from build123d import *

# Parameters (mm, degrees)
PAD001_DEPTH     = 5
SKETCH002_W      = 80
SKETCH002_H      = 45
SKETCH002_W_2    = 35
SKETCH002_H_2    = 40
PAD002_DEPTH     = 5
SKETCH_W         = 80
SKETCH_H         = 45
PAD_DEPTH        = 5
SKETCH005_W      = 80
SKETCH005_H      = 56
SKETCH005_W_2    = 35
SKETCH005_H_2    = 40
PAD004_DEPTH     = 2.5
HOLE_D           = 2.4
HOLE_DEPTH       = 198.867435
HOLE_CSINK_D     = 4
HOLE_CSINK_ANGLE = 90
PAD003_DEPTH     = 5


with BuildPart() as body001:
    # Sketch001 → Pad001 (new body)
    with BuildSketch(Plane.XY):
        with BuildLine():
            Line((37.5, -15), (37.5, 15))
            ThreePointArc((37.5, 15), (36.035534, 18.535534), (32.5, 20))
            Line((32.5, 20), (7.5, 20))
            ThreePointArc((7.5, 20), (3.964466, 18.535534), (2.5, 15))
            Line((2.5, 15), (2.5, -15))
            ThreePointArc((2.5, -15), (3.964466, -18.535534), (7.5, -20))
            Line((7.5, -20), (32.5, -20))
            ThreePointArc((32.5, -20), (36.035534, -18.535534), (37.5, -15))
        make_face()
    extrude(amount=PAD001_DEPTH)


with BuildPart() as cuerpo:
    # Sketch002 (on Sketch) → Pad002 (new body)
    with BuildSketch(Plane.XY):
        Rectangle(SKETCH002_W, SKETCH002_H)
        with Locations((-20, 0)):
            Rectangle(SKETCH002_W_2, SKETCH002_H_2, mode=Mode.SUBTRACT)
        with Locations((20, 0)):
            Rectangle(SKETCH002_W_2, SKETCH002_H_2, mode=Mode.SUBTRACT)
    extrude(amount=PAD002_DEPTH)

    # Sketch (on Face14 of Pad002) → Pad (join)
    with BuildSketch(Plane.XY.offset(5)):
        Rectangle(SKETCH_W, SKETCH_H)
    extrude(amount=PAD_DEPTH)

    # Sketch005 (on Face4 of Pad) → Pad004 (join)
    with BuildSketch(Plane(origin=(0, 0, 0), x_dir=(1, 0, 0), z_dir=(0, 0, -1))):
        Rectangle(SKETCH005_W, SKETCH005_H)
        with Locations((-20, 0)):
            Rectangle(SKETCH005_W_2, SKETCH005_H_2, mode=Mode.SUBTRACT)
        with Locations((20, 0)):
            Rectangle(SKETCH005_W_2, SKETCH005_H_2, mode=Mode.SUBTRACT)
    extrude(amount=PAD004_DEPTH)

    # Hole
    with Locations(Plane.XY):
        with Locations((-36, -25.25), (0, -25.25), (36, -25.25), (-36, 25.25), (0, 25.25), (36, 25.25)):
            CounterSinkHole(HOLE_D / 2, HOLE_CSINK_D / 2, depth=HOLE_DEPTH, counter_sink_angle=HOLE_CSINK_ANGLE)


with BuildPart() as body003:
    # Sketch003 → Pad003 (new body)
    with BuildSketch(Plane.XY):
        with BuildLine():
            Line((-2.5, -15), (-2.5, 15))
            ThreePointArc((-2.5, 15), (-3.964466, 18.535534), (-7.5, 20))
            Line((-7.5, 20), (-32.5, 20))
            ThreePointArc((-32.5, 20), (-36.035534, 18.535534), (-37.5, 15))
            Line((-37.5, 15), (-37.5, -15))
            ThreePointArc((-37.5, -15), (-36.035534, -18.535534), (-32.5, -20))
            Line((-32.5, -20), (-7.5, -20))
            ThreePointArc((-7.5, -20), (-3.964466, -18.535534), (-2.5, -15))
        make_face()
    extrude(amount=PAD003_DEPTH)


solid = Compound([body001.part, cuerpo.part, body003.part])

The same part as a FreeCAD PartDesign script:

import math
import FreeCAD as App
import Part
import Sketcher

doc = App.newDocument("Part")
body = doc.addObject("PartDesign::Body", "Body")

# Sketch on XY plane
sketch1 = body.newObject("Sketcher::SketchObject", "Sketch")
sketch1.AttachmentSupport = (doc.getObject("XY_Plane"), [""])
sketch1.MapMode = "FlatFace"
sketch1.addGeometry([
    Part.LineSegment(App.Vector(37.5, -15, 0), App.Vector(37.5, 15, 0)),  # 0
    Part.ArcOfCircle(Part.Circle(App.Vector(32.5, 15, 0), App.Vector(0, 0, 1), 5), math.radians(-0.000004), math.radians(90.000004)),  # 1
    Part.LineSegment(App.Vector(32.5, 20, 0), App.Vector(7.5, 20, 0)),  # 2
    Part.ArcOfCircle(Part.Circle(App.Vector(7.5, 15, 0), App.Vector(0, 0, 1), 5), math.radians(89.999996), math.radians(180.000004)),  # 3
    Part.LineSegment(App.Vector(2.5, 15, 0), App.Vector(2.5, -15, 0)),  # 4
    Part.ArcOfCircle(Part.Circle(App.Vector(7.5, -15, 0), App.Vector(0, 0, 1), 5), math.radians(179.999996), math.radians(270.000004)),  # 5
    Part.LineSegment(App.Vector(7.5, -20, 0), App.Vector(32.5, -20, 0)),  # 6
    Part.ArcOfCircle(Part.Circle(App.Vector(32.5, -15, 0), App.Vector(0, 0, 1), 5), math.radians(-90.000004), math.radians(0.000004)),  # 7
], False)
sketch1.addConstraint([
    Sketcher.Constraint("Tangent", 0, 2, 1, 1),
    Sketcher.Constraint("Tangent", 1, 2, 2, 1),
    Sketcher.Constraint("Tangent", 2, 2, 3, 1),
    Sketcher.Constraint("Tangent", 3, 2, 4, 1),
    Sketcher.Constraint("Tangent", 4, 2, 5, 1),
    Sketcher.Constraint("Tangent", 5, 2, 6, 1),
    Sketcher.Constraint("Tangent", 6, 2, 7, 1),
    Sketcher.Constraint("Tangent", 7, 2, 0, 1),
    Sketcher.Constraint("Vertical", 0),
    Sketcher.Constraint("Horizontal", 2),
    Sketcher.Constraint("Vertical", 4),
    Sketcher.Constraint("Horizontal", 6),
    Sketcher.Constraint("Equal", 1, 3),
    Sketcher.Constraint("Equal", 3, 5),
    Sketcher.Constraint("Equal", 5, 7),
    Sketcher.Constraint("Radius", 1, 5.0),
    Sketcher.Constraint("DistanceX", 2, 2, 2, 1, 25.0),
    Sketcher.Constraint("DistanceY", 0, 1, 0, 2, 30.0),
    Sketcher.Constraint("DistanceY", -1, 1, 1, 3, 15.0),
    Sketcher.Constraint("DistanceX", -1, 1, 1, 3, 32.5),
])
pad1 = body.newObject("PartDesign::Pad", "Pad")
pad1.Profile = sketch1
pad1.Length = 5
body2 = doc.addObject("PartDesign::Body", "Body001")

# Sketch on XY plane
sketch2 = body2.newObject("Sketcher::SketchObject", "Sketch001")
sketch2.AttachmentSupport = (doc.getObject("XY_Plane001"), [""])
sketch2.MapMode = "FlatFace"
sketch2.addGeometry([
    Part.LineSegment(App.Vector(-40, 22.5, 0), App.Vector(-40, -22.5, 0)),  # 0
    Part.LineSegment(App.Vector(-40, -22.5, 0), App.Vector(40, -22.5, 0)),  # 1
    Part.LineSegment(App.Vector(40, -22.5, 0), App.Vector(40, 22.5, 0)),  # 2
    Part.LineSegment(App.Vector(40, 22.5, 0), App.Vector(-40, 22.5, 0)),  # 3
    Part.LineSegment(App.Vector(-2.5, -20, 0), App.Vector(-37.5, -20, 0)),  # 4
    Part.LineSegment(App.Vector(-37.5, -20, 0), App.Vector(-37.5, 20, 0)),  # 5
    Part.LineSegment(App.Vector(-37.5, 20, 0), App.Vector(-2.5, 20, 0)),  # 6
    Part.LineSegment(App.Vector(-2.5, 20, 0), App.Vector(-2.5, -20, 0)),  # 7
    Part.LineSegment(App.Vector(37.5, -20, 0), App.Vector(2.5, -20, 0)),  # 8
    Part.LineSegment(App.Vector(2.5, -20, 0), App.Vector(2.5, 20, 0)),  # 9
    Part.LineSegment(App.Vector(2.5, 20, 0), App.Vector(37.5, 20, 0)),  # 10
    Part.LineSegment(App.Vector(37.5, 20, 0), App.Vector(37.5, -20, 0)),  # 11
], False)
sketch2.addConstraint([
    Sketcher.Constraint("Coincident", 0, 2, 1, 1),
    Sketcher.Constraint("Coincident", 1, 2, 2, 1),
    Sketcher.Constraint("Coincident", 2, 2, 3, 1),
    Sketcher.Constraint("Coincident", 3, 2, 0, 1),
    Sketcher.Constraint("Coincident", 4, 2, 5, 1),
    Sketcher.Constraint("Coincident", 5, 2, 6, 1),
    Sketcher.Constraint("Coincident", 6, 2, 7, 1),
    Sketcher.Constraint("Coincident", 7, 2, 4, 1),
    Sketcher.Constraint("Coincident", 8, 2, 9, 1),
    Sketcher.Constraint("Coincident", 9, 2, 10, 1),
    Sketcher.Constraint("Coincident", 10, 2, 11, 1),
    Sketcher.Constraint("Coincident", 11, 2, 8, 1),
    Sketcher.Constraint("Vertical", 0),
    Sketcher.Constraint("Horizontal", 1),
    Sketcher.Constraint("Vertical", 2),
    Sketcher.Constraint("Horizontal", 3),
    Sketcher.Constraint("Horizontal", 4),
    Sketcher.Constraint("Vertical", 5),
    Sketcher.Constraint("Horizontal", 6),
    Sketcher.Constraint("Vertical", 7),
    Sketcher.Constraint("Horizontal", 8),
    Sketcher.Constraint("Vertical", 9),
    Sketcher.Constraint("Horizontal", 10),
    Sketcher.Constraint("Vertical", 11),
    Sketcher.Constraint("Symmetric", 0, 2, 2, 2, -1, 1),
    Sketcher.Constraint("Symmetric", 6, 2, 8, 2, -1, 1),
    Sketcher.Constraint("Symmetric", 4, 2, 10, 2, -1, 1),
    Sketcher.Constraint("Horizontal", 7, 2, 8, 2),
    Sketcher.Constraint("DistanceX", 1, 1, 1, 2, 80.0),
    Sketcher.Constraint("DistanceX", 4, 2, 4, 1, 35.0),
    Sketcher.Constraint("DistanceY", 0, 2, 0, 1, 45.0),
    Sketcher.Constraint("DistanceY", 5, 1, 5, 2, 40.0),
    Sketcher.Constraint("DistanceX", 7, 2, 8, 2, 5.0),
])
pad2 = body2.newObject("PartDesign::Pad", "Pad001")
pad2.Profile = sketch2
pad2.Length = 5

# Sketch on XY plane
sketch3 = body2.newObject("Sketcher::SketchObject", "Sketch002")
sketch3.AttachmentSupport = (doc.getObject("XY_Plane001"), [""])
sketch3.MapMode = "FlatFace"
sketch3.AttachmentOffset = App.Placement(App.Vector(0, 0, 5), App.Rotation())
sketch3.addGeometry([
    Part.LineSegment(App.Vector(-40, 22.5, 0), App.Vector(-40, -22.5, 0)),
    Part.LineSegment(App.Vector(-40, -22.5, 0), App.Vector(40, -22.5, 0)),
    Part.LineSegment(App.Vector(40, -22.5, 0), App.Vector(40, 22.5, 0)),
    Part.LineSegment(App.Vector(40, 22.5, 0), App.Vector(-40, 22.5, 0)),
], False)
sketch3.addConstraint([
    Sketcher.Constraint("Coincident", 0, 2, 1, 1),
    Sketcher.Constraint("Coincident", 1, 2, 2, 1),
    Sketcher.Constraint("Coincident", 2, 2, 3, 1),
    Sketcher.Constraint("Coincident", 3, 2, 0, 1),
    Sketcher.Constraint("Vertical", 0),
    Sketcher.Constraint("Horizontal", 1),
    Sketcher.Constraint("Vertical", 2),
    Sketcher.Constraint("Horizontal", 3),
    Sketcher.Constraint("Symmetric", 0, 2, 2, 2, -1, 1),
    Sketcher.Constraint("DistanceX", 1, 1, 1, 2, 80.0),
    Sketcher.Constraint("DistanceY", 0, 2, 0, 1, 45.0),
])
pad3 = body2.newObject("PartDesign::Pad", "Pad002")
pad3.Profile = sketch3
pad3.Length = 5

# Sketch on XY plane
sketch4 = body2.newObject("Sketcher::SketchObject", "Sketch003")
sketch4.AttachmentSupport = (doc.getObject("XY_Plane001"), [""])
sketch4.MapMode = "FlatFace"
sketch4.addGeometry([
    Part.LineSegment(App.Vector(-40, -28, 0), App.Vector(-40, 28, 0)),  # 0
    Part.LineSegment(App.Vector(-40, 28, 0), App.Vector(40, 28, 0)),  # 1
    Part.LineSegment(App.Vector(40, 28, 0), App.Vector(40, -28, 0)),  # 2
    Part.LineSegment(App.Vector(40, -28, 0), App.Vector(-40, -28, 0)),  # 3
    Part.LineSegment(App.Vector(-2.5, 20, 0), App.Vector(-37.5, 20, 0)),  # 4
    Part.LineSegment(App.Vector(-37.5, 20, 0), App.Vector(-37.5, -20, 0)),  # 5
    Part.LineSegment(App.Vector(-37.5, -20, 0), App.Vector(-2.5, -20, 0)),  # 6
    Part.LineSegment(App.Vector(-2.5, -20, 0), App.Vector(-2.5, 20, 0)),  # 7
    Part.LineSegment(App.Vector(37.5, 20, 0), App.Vector(2.5, 20, 0)),  # 8
    Part.LineSegment(App.Vector(2.5, 20, 0), App.Vector(2.5, -20, 0)),  # 9
    Part.LineSegment(App.Vector(2.5, -20, 0), App.Vector(37.5, -20, 0)),  # 10
    Part.LineSegment(App.Vector(37.5, -20, 0), App.Vector(37.5, 20, 0)),  # 11
], False)
sketch4.addConstraint([
    Sketcher.Constraint("Coincident", 0, 2, 1, 1),
    Sketcher.Constraint("Coincident", 1, 2, 2, 1),
    Sketcher.Constraint("Coincident", 2, 2, 3, 1),
    Sketcher.Constraint("Coincident", 3, 2, 0, 1),
    Sketcher.Constraint("Coincident", 4, 2, 5, 1),
    Sketcher.Constraint("Coincident", 5, 2, 6, 1),
    Sketcher.Constraint("Coincident", 6, 2, 7, 1),
    Sketcher.Constraint("Coincident", 7, 2, 4, 1),
    Sketcher.Constraint("Coincident", 8, 2, 9, 1),
    Sketcher.Constraint("Coincident", 9, 2, 10, 1),
    Sketcher.Constraint("Coincident", 10, 2, 11, 1),
    Sketcher.Constraint("Coincident", 11, 2, 8, 1),
    Sketcher.Constraint("Vertical", 0),
    Sketcher.Constraint("Horizontal", 1),
    Sketcher.Constraint("Vertical", 2),
    Sketcher.Constraint("Horizontal", 3),
    Sketcher.Constraint("Horizontal", 4),
    Sketcher.Constraint("Vertical", 5),
    Sketcher.Constraint("Horizontal", 6),
    Sketcher.Constraint("Vertical", 7),
    Sketcher.Constraint("Horizontal", 8),
    Sketcher.Constraint("Vertical", 9),
    Sketcher.Constraint("Horizontal", 10),
    Sketcher.Constraint("Vertical", 11),
    Sketcher.Constraint("Symmetric", 0, 2, 2, 2, -1, 1),
    Sketcher.Constraint("Symmetric", 6, 2, 8, 2, -1, 1),
    Sketcher.Constraint("Symmetric", 4, 2, 10, 2, -1, 1),
    Sketcher.Constraint("Horizontal", 7, 2, 8, 2),
    Sketcher.Constraint("DistanceX", 1, 1, 1, 2, 80.0),
    Sketcher.Constraint("DistanceX", 4, 2, 4, 1, 35.0),
    Sketcher.Constraint("DistanceY", 0, 1, 0, 2, 56.0),
    Sketcher.Constraint("DistanceY", 5, 2, 5, 1, 40.0),
    Sketcher.Constraint("DistanceX", 7, 2, 8, 2, 5.0),
])
pad4 = body2.newObject("PartDesign::Pad", "Pad003")
pad4.Profile = sketch4
pad4.Length = 2.5
pad4.Reversed = True

# Sketch on XY plane
sketch5 = body2.newObject("Sketcher::SketchObject", "Sketch004")
sketch5.AttachmentSupport = (doc.getObject("XY_Plane001"), [""])
sketch5.MapMode = "FlatFace"
sketch5.addGeometry([
    Part.Circle(App.Vector(-36, -25.25, 0), App.Vector(0, 0, 1), 1.2),  # 0
    Part.Circle(App.Vector(0, -25.25, 0), App.Vector(0, 0, 1), 1.2),  # 1
    Part.Circle(App.Vector(36, -25.25, 0), App.Vector(0, 0, 1), 1.2),  # 2
    Part.Circle(App.Vector(-36, 25.25, 0), App.Vector(0, 0, 1), 1.2),  # 3
    Part.Circle(App.Vector(0, 25.25, 0), App.Vector(0, 0, 1), 1.2),  # 4
    Part.Circle(App.Vector(36, 25.25, 0), App.Vector(0, 0, 1), 1.2),  # 5
], False)
sketch5.addConstraint([
    Sketcher.Constraint("Equal", 0, 1),
    Sketcher.Constraint("Equal", 1, 2),
    Sketcher.Constraint("Equal", 2, 3),
    Sketcher.Constraint("Equal", 3, 4),
    Sketcher.Constraint("Equal", 4, 5),
    Sketcher.Constraint("Symmetric", 2, 3, 3, 3, -1, 1),
    Sketcher.Constraint("Symmetric", 1, 3, 4, 3, -1, 1),
    Sketcher.Constraint("Symmetric", 0, 3, 5, 3, -1, 1),
    Sketcher.Constraint("Symmetric", 0, 3, 2, 3, -2),
    Sketcher.Constraint("PointOnObject", 1, 3, -2),
    Sketcher.Constraint("Horizontal", 0, 3, 1, 3),
    Sketcher.Constraint("Diameter", 0, 2.4),
    Sketcher.Constraint("DistanceX", 0, 3, -1, 1, 36.0),
    Sketcher.Constraint("DistanceY", 0, 3, 3, 3, 50.5),
])
doc.recompute()
hole = body2.newObject("PartDesign::Hole", "Hole")
hole.Profile = sketch5
hole.ThreadType = "None"
hole.Diameter = 2.4
hole.DepthType = "Dimension"
hole.Depth = 198.867435
hole.DrillPoint = "Flat"
hole.HoleCutType = "Countersink"
hole.HoleCutDiameter = 4
hole.HoleCutCountersinkAngle = 90
body3 = doc.addObject("PartDesign::Body", "Body002")

# Sketch on XY plane
sketch6 = body3.newObject("Sketcher::SketchObject", "Sketch005")
sketch6.AttachmentSupport = (doc.getObject("XY_Plane002"), [""])
sketch6.MapMode = "FlatFace"
sketch6.addGeometry([
    Part.LineSegment(App.Vector(-2.5, -15, 0), App.Vector(-2.5, 15, 0)),  # 0
    Part.ArcOfCircle(Part.Circle(App.Vector(-7.5, 15, 0), App.Vector(0, 0, 1), 5), math.radians(-0.000004), math.radians(90.000004)),  # 1
    Part.LineSegment(App.Vector(-7.5, 20, 0), App.Vector(-32.5, 20, 0)),  # 2
    Part.ArcOfCircle(Part.Circle(App.Vector(-32.5, 15, 0), App.Vector(0, 0, 1), 5), math.radians(89.999996), math.radians(180.000004)),  # 3
    Part.LineSegment(App.Vector(-37.5, 15, 0), App.Vector(-37.5, -15, 0)),  # 4
    Part.ArcOfCircle(Part.Circle(App.Vector(-32.5, -15, 0), App.Vector(0, 0, 1), 5), math.radians(179.999996), math.radians(270.000004)),  # 5
    Part.LineSegment(App.Vector(-32.5, -20, 0), App.Vector(-7.5, -20, 0)),  # 6
    Part.ArcOfCircle(Part.Circle(App.Vector(-7.5, -15, 0), App.Vector(0, 0, 1), 5), math.radians(-90.000004), math.radians(0.000004)),  # 7
], False)
sketch6.addConstraint([
    Sketcher.Constraint("Tangent", 0, 2, 1, 1),
    Sketcher.Constraint("Tangent", 1, 2, 2, 1),
    Sketcher.Constraint("Tangent", 2, 2, 3, 1),
    Sketcher.Constraint("Tangent", 3, 2, 4, 1),
    Sketcher.Constraint("Tangent", 4, 2, 5, 1),
    Sketcher.Constraint("Tangent", 5, 2, 6, 1),
    Sketcher.Constraint("Tangent", 6, 2, 7, 1),
    Sketcher.Constraint("Tangent", 7, 2, 0, 1),
    Sketcher.Constraint("Vertical", 0),
    Sketcher.Constraint("Horizontal", 2),
    Sketcher.Constraint("Vertical", 4),
    Sketcher.Constraint("Horizontal", 6),
    Sketcher.Constraint("Equal", 1, 3),
    Sketcher.Constraint("Equal", 3, 5),
    Sketcher.Constraint("Equal", 5, 7),
    Sketcher.Constraint("Radius", 1, 5.0),
    Sketcher.Constraint("DistanceX", 2, 2, 2, 1, 25.0),
    Sketcher.Constraint("DistanceY", 0, 1, 0, 2, 30.0),
    Sketcher.Constraint("DistanceY", -1, 1, 1, 3, 15.0),
    Sketcher.Constraint("DistanceX", 1, 3, -1, 1, 7.5),
])
pad5 = body3.newObject("PartDesign::Pad", "Pad004")
pad5.Profile = sketch6
pad5.Length = 5

doc.recompute()
